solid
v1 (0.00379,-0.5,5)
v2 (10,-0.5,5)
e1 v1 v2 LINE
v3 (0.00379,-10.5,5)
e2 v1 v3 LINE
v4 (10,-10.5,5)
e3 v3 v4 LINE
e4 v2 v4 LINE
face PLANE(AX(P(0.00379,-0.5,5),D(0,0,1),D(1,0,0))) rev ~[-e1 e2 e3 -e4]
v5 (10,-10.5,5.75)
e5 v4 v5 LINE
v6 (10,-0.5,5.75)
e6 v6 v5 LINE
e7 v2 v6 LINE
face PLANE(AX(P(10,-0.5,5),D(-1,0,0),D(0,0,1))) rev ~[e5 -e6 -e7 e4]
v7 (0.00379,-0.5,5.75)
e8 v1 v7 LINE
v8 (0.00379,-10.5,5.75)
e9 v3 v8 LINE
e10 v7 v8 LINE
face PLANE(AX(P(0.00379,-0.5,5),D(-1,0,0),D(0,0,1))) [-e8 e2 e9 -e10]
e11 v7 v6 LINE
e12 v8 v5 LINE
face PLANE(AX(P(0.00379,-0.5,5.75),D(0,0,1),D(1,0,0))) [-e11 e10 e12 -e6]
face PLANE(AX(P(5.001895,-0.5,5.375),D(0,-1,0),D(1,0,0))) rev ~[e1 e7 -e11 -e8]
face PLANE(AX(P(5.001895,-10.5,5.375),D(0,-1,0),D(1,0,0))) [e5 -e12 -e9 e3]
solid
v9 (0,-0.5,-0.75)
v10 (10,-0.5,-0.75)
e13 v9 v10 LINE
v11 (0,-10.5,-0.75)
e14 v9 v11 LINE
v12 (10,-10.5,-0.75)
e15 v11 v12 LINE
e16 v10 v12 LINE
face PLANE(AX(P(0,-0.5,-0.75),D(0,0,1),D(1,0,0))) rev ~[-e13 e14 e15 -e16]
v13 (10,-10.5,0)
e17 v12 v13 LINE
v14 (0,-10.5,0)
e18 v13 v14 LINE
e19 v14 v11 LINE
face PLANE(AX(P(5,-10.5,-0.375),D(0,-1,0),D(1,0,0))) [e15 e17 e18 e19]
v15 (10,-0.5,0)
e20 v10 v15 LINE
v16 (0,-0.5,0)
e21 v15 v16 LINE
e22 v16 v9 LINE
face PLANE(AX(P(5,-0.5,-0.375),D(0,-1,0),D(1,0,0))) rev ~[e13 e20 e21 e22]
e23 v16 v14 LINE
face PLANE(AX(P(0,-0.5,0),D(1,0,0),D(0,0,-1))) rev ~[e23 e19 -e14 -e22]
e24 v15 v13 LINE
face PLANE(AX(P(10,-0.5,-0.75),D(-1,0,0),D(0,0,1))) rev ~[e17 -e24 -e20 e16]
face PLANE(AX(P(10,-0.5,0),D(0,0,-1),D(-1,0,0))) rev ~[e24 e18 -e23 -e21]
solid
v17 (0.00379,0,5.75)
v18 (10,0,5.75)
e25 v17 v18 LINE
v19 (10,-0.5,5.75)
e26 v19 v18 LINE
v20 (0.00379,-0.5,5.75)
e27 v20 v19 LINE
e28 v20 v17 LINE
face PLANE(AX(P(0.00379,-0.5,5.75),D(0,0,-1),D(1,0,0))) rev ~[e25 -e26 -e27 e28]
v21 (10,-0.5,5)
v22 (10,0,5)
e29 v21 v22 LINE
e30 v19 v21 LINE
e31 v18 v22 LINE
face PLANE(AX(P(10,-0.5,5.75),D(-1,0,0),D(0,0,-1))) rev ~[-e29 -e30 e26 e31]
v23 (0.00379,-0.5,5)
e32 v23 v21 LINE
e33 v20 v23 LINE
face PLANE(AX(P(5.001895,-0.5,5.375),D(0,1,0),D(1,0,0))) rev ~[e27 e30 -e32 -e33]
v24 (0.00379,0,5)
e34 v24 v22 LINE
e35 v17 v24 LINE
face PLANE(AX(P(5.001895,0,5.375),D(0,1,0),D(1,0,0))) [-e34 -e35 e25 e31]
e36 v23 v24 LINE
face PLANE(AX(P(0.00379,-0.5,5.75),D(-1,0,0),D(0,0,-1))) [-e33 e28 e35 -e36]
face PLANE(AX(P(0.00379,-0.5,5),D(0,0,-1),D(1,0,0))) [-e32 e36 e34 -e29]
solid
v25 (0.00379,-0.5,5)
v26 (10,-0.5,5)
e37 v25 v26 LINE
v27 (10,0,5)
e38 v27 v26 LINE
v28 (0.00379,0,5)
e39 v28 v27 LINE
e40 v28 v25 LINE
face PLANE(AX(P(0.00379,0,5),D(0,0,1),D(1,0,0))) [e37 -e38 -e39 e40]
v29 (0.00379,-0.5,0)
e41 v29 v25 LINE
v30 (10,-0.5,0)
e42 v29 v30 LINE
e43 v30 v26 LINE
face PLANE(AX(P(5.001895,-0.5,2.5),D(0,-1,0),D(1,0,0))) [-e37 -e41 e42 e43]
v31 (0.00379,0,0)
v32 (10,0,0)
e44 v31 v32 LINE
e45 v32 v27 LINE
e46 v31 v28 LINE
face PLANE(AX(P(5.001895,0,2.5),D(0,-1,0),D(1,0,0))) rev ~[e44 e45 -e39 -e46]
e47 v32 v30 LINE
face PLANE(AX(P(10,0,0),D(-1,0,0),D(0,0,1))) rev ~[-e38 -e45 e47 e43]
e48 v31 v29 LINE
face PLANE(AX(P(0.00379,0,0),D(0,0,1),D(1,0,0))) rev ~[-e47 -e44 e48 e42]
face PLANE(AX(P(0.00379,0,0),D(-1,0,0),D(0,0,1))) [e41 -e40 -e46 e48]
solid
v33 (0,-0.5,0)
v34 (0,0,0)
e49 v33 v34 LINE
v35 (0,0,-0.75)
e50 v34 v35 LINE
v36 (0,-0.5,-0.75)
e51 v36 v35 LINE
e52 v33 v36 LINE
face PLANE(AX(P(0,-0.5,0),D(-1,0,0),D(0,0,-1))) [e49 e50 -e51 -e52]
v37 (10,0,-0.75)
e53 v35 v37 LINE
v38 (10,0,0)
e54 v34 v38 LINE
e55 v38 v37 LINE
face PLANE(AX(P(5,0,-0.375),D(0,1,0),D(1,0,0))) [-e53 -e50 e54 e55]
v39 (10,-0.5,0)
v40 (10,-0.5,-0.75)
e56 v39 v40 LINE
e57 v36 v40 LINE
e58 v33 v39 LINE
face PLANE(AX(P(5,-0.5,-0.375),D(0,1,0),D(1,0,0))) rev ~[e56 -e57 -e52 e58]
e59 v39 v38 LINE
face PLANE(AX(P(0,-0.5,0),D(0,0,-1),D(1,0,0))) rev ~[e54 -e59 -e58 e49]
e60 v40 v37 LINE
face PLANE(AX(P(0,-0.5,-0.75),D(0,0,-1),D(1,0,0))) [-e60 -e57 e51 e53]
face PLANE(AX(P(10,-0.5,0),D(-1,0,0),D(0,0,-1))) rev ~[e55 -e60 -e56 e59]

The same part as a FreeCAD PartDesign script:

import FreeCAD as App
import Part
import Sketcher

V = App.Vector

doc = App.newDocument("Part")
body = doc.addObject("PartDesign::Body", "Body")

# Sketch on XZ plane
sketch1 = doc.addObject("Sketcher::SketchObject", "Sketch")
body.addObject(sketch1)
sketch1.AttachmentSupport = (doc.XZ_Plane, [""])
sketch1.MapMode = "FlatFace"
sketch1.addGeometry([
    Part.LineSegment(V(0, 5, 0), V(0, 0, 0)),
    Part.LineSegment(V(0, 0, 0), V(10, 0, 0)),
    Part.LineSegment(V(10, 0, 0), V(10, 5, 0)),
    Part.LineSegment(V(10, 5, 0), V(0, 5, 0)),
], False)
sketch1.addConstraint([
    Sketcher.Constraint("Coincident", 0, 2, 1, 1),
    Sketcher.Constraint("Coincident", 1, 2, 2, 1),
    Sketcher.Constraint("Coincident", 2, 2, 3, 1),
    Sketcher.Constraint("Coincident", 3, 2, 0, 1),
    Sketcher.Constraint("Vertical", 0),
    Sketcher.Constraint("Horizontal", 1),
    Sketcher.Constraint("Vertical", 2),
    Sketcher.Constraint("Horizontal", 3),
    Sketcher.Constraint("PointOnObject", 0, 2, -1),
    Sketcher.Constraint("DistanceY", 0, 2, 0, 1, 5.0),
    Sketcher.Constraint("DistanceX", -1, 1, 1, 2, 10.0),
    Sketcher.Constraint("DistanceX", 1, 1, 1, 2, 9.99621),
])
pad1 = doc.addObject("PartDesign::Pad", "Pad")
body.addObject(pad1)
pad1.Profile = sketch1
pad1.Length = 0.5
body2 = doc.addObject("PartDesign::Body", "Body001")
body2.AllowCompound = True

# Sketch on XZ plane
sketch2 = doc.addObject("Sketcher::SketchObject", "Sketch001")
body2.addObject(sketch2)
sketch2.AttachmentSupport = (doc.getObject("XZ_Plane001"), [""])
sketch2.MapMode = "FlatFace"
sketch2.AttachmentOffset = App.Placement(V(0, 0, 0.5), App.Rotation())
sketch2.addGeometry([
    Part.LineSegment(V(0, 5.8, 0), V(0, 5, 0)),  # 0
    Part.LineSegment(V(0, 5, 0), V(10, 5, 0)),  # 1
    Part.LineSegment(V(10, 5, 0), V(10, 5.8, 0)),  # 2
    Part.LineSegment(V(10, 5.8, 0), V(0, 5.8, 0)),  # 3
    Part.LineSegment(V(0, 0, 0), V(0, -0.8, 0)),  # 4
    Part.LineSegment(V(0, -0.8, 0), V(10, -0.8, 0)),  # 5
    Part.LineSegment(V(10, -0.8, 0), V(10, 0, 0)),  # 6
    Part.LineSegment(V(10, 0, 0), V(0, 0, 0)),  # 7
], False)
sketch2.addConstraint([
    Sketcher.Constraint("Coincident", 0, 2, 1, 1),
    Sketcher.Constraint("Coincident", 1, 2, 2, 1),
    Sketcher.Constraint("Coincident", 2, 2, 3, 1),
    Sketcher.Constraint("Coincident", 3, 2, 0, 1),
    Sketcher.Constraint("Coincident", 4, 2, 5, 1),
    Sketcher.Constraint("Coincident", 5, 2, 6, 1),
    Sketcher.Constraint("Coincident", 6, 2, 7, 1),
    Sketcher.Constraint("Coincident", 7, 2, 4, 1),
    Sketcher.Constraint("Vertical", 0),
    Sketcher.Constraint("Horizontal", 1),
    Sketcher.Constraint("Vertical", 2),
    Sketcher.Constraint("Horizontal", 3),
    Sketcher.Constraint("Vertical", 4),
    Sketcher.Constraint("Horizontal", 5),
    Sketcher.Constraint("Vertical", 6),
    Sketcher.Constraint("Horizontal", 7),
    Sketcher.Constraint("Coincident", 7, 2, -1, 1),
    Sketcher.Constraint("Vertical", 2, 2, 5, 2),
    Sketcher.Constraint("Equal", 2, 4),
    Sketcher.Constraint("DistanceX", 5, 1, 5, 2, 10.0),
    Sketcher.Constraint("DistanceY", -1, 1, 0, 2, 5.0),
    Sketcher.Constraint("DistanceY", 0, 2, 0, 1, 0.75),
    Sketcher.Constraint("DistanceX", 1, 1, 1, 2, 9.99621),
])
pad2 = doc.addObject("PartDesign::Pad", "Pad001")
body2.addObject(pad2)
pad2.Profile = sketch2
pad2.Length = 10
body3 = doc.addObject("PartDesign::Body", "Body002")
body3.AllowCompound = True

# Sketch on XZ plane
sketch3 = doc.addObject("Sketcher::SketchObject", "Sketch002")
body3.addObject(sketch3)
sketch3.AttachmentSupport = (doc.getObject("XZ_Plane002"), [""])
sketch3.MapMode = "FlatFace"
sketch3.AttachmentOffset = App.Placement(V(0, 0, 0.5), App.Rotation())
sketch3.addGeometry([
    Part.LineSegment(V(0, 5, 0), V(0, 5.8, 0)),  # 0
    Part.LineSegment(V(0, 5.8, 0), V(10, 5.8, 0)),  # 1
    Part.LineSegment(V(10, 5.8, 0), V(10, 5, 0)),  # 2
    Part.LineSegment(V(10, 5, 0), V(0, 5, 0)),  # 3
    Part.LineSegment(V(0, -0.8, 0), V(0, 0, 0)),  # 4
    Part.LineSegment(V(0, 0, 0), V(10, 0, 0)),  # 5
    Part.LineSegment(V(10, 0, 0), V(10, -0.8, 0)),  # 6
    Part.LineSegment(V(10, -0.8, 0), V(0, -0.8, 0)),  # 7
], False)
sketch3.addConstraint([
    Sketcher.Constraint("Coincident", 0, 2, 1, 1),
    Sketcher.Constraint("Coincident", 1, 2, 2, 1),
    Sketcher.Constraint("Coincident", 2, 2, 3, 1),
    Sketcher.Constraint("Coincident", 3, 2, 0, 1),
    Sketcher.Constraint("Coincident", 4, 2, 5, 1),
    Sketcher.Constraint("Coincident", 5, 2, 6, 1),
    Sketcher.Constraint("Coincident", 6, 2, 7, 1),
    Sketcher.Constraint("Coincident", 7, 2, 4, 1),
    Sketcher.Constraint("Vertical", 0),
    Sketcher.Constraint("Horizontal", 1),
    Sketcher.Constraint("Vertical", 2),
    Sketcher.Constraint("Horizontal", 3),
    Sketcher.Constraint("Vertical", 4),
    Sketcher.Constraint("Horizontal", 5),
    Sketcher.Constraint("Vertical", 6),
    Sketcher.Constraint("Horizontal", 7),
    Sketcher.Constraint("Coincident", 4, 2, -1, 1),
    Sketcher.Constraint("Vertical", 2, 2, 5, 2),
    Sketcher.Constraint("Equal", 2, 4),
    Sketcher.Constraint("DistanceX", 5, 1, 5, 2, 10.0),
    Sketcher.Constraint("DistanceY", -1, 1, 2, 2, 5.0),
    Sketcher.Constraint("DistanceY", 0, 1, 0, 2, 0.75),
    Sketcher.Constraint("DistanceX", 1, 1, 1, 2, 9.99621),
])
pad3 = doc.addObject("PartDesign::Pad", "Pad002")
body3.addObject(pad3)
pad3.Profile = sketch3
pad3.Length = 0.5
pad3.Reversed = True

doc.recompute()
